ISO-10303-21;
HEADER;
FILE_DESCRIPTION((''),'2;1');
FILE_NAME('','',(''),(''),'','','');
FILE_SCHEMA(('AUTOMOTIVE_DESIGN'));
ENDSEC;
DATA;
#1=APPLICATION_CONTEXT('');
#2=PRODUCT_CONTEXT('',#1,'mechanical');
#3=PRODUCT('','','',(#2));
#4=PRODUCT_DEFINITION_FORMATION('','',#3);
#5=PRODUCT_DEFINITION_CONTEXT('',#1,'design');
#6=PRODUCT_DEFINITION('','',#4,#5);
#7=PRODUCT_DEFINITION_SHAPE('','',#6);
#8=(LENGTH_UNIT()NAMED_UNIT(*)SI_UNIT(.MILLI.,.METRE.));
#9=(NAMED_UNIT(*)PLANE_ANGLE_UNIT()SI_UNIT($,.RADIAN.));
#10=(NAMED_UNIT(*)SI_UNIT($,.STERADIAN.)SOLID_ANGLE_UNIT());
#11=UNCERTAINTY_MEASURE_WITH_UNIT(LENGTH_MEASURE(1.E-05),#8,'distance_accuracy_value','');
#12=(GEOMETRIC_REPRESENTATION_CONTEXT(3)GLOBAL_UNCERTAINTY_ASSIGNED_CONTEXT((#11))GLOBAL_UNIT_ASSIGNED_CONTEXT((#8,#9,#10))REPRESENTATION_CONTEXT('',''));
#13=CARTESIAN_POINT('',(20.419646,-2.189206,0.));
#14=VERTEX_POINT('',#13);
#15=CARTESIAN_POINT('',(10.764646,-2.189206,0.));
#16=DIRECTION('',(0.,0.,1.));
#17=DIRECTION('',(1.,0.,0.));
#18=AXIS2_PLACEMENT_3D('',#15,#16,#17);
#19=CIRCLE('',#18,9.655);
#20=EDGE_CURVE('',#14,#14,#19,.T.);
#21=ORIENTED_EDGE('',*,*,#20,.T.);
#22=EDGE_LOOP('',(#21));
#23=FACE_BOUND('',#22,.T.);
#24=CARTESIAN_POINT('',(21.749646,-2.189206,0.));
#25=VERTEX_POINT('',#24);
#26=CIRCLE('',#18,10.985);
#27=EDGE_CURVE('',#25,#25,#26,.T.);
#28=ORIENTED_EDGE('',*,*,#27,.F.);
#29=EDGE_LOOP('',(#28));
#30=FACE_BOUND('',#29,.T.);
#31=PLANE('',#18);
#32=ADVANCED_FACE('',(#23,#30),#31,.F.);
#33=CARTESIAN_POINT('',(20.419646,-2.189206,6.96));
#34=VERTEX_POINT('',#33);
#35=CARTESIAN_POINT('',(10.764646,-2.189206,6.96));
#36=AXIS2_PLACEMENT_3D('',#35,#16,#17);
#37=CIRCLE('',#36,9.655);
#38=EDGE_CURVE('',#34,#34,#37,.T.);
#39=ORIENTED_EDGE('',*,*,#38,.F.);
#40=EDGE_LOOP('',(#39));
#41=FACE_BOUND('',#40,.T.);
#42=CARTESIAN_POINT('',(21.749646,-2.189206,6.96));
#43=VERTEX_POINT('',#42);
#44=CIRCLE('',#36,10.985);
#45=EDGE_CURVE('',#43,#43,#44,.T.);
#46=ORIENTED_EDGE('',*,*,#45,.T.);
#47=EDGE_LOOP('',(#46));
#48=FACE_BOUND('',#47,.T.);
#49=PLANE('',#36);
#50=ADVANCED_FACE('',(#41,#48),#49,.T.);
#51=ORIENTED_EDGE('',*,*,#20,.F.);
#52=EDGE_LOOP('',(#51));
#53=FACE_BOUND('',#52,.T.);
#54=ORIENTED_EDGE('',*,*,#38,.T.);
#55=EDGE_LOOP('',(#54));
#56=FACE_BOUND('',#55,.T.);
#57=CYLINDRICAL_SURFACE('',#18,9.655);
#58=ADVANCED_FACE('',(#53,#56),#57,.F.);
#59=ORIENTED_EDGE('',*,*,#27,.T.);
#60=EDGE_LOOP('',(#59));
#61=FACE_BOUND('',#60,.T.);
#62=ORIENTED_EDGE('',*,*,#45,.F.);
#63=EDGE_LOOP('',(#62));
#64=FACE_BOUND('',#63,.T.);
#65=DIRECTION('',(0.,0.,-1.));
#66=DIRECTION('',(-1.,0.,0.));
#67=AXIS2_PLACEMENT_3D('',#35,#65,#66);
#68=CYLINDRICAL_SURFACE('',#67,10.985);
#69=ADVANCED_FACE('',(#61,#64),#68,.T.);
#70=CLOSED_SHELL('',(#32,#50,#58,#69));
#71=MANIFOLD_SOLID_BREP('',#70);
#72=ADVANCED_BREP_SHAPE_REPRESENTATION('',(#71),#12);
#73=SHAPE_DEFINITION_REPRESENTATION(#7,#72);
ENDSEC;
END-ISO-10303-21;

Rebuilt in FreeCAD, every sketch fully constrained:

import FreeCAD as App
import Part
import Sketcher

doc = App.newDocument("Part")
body = doc.addObject("PartDesign::Body", "Body")

# Sketch on XY plane
sketch1 = body.newObject("Sketcher::SketchObject", "Sketch")
sketch1.AttachmentSupport = (doc.getObject("XY_Plane"), [""])
sketch1.MapMode = "FlatFace"
sketch1.addGeometry([
    Part.Circle(App.Vector(10.764646, -2.189206, 0), App.Vector(0, 0, 1), 10.985),
    Part.Circle(App.Vector(10.764646, -2.189206, 0), App.Vector(0, 0, 1), 3.965),
], False)
sketch1.addConstraint([
    Sketcher.Constraint("Coincident", 1, 3, 0, 3),
    Sketcher.Constraint("Diameter", 0, 21.97),
    Sketcher.Constraint("Diameter", 1, 7.93),
    Sketcher.Constraint("DistanceX", -1, 1, 0, 3, 10.764646),
    Sketcher.Constraint("DistanceY", 0, 3, -1, 1, 2.189206),
])
pad1 = body.newObject("PartDesign::Pad", "Pad")
pad1.Profile = sketch1
pad1.Length = 6.96

# Sketch on XY plane
sketch2 = body.newObject("Sketcher::SketchObject", "Sketch001")
sketch2.AttachmentSupport = (doc.getObject("XY_Plane"), [""])
sketch2.MapMode = "FlatFace"
sketch2.addGeometry([
    Part.Circle(App.Vector(10.764646, -2.189206, 0), App.Vector(0, 0, 1), 9.655),
    Part.Circle(App.Vector(10.764646, -2.189206, 0), App.Vector(0, 0, 1), 3.965),
], False)
sketch2.addConstraint([
    Sketcher.Constraint("Coincident", 1, 3, 0, 3),
    Sketcher.Constraint("Diameter", 0, 19.31),
    Sketcher.Constraint("Diameter", 1, 7.93),
    Sketcher.Constraint("DistanceX", -1, 1, 0, 3, 10.764646),
    Sketcher.Constraint("DistanceY", 0, 3, -1, 1, 2.189206),
])
pocket1 = body.newObject("PartDesign::Pocket", "Pocket")
pocket1.Profile = sketch2
pocket1.Length = 6.96
pocket1.Reversed = True

doc.recompute()
